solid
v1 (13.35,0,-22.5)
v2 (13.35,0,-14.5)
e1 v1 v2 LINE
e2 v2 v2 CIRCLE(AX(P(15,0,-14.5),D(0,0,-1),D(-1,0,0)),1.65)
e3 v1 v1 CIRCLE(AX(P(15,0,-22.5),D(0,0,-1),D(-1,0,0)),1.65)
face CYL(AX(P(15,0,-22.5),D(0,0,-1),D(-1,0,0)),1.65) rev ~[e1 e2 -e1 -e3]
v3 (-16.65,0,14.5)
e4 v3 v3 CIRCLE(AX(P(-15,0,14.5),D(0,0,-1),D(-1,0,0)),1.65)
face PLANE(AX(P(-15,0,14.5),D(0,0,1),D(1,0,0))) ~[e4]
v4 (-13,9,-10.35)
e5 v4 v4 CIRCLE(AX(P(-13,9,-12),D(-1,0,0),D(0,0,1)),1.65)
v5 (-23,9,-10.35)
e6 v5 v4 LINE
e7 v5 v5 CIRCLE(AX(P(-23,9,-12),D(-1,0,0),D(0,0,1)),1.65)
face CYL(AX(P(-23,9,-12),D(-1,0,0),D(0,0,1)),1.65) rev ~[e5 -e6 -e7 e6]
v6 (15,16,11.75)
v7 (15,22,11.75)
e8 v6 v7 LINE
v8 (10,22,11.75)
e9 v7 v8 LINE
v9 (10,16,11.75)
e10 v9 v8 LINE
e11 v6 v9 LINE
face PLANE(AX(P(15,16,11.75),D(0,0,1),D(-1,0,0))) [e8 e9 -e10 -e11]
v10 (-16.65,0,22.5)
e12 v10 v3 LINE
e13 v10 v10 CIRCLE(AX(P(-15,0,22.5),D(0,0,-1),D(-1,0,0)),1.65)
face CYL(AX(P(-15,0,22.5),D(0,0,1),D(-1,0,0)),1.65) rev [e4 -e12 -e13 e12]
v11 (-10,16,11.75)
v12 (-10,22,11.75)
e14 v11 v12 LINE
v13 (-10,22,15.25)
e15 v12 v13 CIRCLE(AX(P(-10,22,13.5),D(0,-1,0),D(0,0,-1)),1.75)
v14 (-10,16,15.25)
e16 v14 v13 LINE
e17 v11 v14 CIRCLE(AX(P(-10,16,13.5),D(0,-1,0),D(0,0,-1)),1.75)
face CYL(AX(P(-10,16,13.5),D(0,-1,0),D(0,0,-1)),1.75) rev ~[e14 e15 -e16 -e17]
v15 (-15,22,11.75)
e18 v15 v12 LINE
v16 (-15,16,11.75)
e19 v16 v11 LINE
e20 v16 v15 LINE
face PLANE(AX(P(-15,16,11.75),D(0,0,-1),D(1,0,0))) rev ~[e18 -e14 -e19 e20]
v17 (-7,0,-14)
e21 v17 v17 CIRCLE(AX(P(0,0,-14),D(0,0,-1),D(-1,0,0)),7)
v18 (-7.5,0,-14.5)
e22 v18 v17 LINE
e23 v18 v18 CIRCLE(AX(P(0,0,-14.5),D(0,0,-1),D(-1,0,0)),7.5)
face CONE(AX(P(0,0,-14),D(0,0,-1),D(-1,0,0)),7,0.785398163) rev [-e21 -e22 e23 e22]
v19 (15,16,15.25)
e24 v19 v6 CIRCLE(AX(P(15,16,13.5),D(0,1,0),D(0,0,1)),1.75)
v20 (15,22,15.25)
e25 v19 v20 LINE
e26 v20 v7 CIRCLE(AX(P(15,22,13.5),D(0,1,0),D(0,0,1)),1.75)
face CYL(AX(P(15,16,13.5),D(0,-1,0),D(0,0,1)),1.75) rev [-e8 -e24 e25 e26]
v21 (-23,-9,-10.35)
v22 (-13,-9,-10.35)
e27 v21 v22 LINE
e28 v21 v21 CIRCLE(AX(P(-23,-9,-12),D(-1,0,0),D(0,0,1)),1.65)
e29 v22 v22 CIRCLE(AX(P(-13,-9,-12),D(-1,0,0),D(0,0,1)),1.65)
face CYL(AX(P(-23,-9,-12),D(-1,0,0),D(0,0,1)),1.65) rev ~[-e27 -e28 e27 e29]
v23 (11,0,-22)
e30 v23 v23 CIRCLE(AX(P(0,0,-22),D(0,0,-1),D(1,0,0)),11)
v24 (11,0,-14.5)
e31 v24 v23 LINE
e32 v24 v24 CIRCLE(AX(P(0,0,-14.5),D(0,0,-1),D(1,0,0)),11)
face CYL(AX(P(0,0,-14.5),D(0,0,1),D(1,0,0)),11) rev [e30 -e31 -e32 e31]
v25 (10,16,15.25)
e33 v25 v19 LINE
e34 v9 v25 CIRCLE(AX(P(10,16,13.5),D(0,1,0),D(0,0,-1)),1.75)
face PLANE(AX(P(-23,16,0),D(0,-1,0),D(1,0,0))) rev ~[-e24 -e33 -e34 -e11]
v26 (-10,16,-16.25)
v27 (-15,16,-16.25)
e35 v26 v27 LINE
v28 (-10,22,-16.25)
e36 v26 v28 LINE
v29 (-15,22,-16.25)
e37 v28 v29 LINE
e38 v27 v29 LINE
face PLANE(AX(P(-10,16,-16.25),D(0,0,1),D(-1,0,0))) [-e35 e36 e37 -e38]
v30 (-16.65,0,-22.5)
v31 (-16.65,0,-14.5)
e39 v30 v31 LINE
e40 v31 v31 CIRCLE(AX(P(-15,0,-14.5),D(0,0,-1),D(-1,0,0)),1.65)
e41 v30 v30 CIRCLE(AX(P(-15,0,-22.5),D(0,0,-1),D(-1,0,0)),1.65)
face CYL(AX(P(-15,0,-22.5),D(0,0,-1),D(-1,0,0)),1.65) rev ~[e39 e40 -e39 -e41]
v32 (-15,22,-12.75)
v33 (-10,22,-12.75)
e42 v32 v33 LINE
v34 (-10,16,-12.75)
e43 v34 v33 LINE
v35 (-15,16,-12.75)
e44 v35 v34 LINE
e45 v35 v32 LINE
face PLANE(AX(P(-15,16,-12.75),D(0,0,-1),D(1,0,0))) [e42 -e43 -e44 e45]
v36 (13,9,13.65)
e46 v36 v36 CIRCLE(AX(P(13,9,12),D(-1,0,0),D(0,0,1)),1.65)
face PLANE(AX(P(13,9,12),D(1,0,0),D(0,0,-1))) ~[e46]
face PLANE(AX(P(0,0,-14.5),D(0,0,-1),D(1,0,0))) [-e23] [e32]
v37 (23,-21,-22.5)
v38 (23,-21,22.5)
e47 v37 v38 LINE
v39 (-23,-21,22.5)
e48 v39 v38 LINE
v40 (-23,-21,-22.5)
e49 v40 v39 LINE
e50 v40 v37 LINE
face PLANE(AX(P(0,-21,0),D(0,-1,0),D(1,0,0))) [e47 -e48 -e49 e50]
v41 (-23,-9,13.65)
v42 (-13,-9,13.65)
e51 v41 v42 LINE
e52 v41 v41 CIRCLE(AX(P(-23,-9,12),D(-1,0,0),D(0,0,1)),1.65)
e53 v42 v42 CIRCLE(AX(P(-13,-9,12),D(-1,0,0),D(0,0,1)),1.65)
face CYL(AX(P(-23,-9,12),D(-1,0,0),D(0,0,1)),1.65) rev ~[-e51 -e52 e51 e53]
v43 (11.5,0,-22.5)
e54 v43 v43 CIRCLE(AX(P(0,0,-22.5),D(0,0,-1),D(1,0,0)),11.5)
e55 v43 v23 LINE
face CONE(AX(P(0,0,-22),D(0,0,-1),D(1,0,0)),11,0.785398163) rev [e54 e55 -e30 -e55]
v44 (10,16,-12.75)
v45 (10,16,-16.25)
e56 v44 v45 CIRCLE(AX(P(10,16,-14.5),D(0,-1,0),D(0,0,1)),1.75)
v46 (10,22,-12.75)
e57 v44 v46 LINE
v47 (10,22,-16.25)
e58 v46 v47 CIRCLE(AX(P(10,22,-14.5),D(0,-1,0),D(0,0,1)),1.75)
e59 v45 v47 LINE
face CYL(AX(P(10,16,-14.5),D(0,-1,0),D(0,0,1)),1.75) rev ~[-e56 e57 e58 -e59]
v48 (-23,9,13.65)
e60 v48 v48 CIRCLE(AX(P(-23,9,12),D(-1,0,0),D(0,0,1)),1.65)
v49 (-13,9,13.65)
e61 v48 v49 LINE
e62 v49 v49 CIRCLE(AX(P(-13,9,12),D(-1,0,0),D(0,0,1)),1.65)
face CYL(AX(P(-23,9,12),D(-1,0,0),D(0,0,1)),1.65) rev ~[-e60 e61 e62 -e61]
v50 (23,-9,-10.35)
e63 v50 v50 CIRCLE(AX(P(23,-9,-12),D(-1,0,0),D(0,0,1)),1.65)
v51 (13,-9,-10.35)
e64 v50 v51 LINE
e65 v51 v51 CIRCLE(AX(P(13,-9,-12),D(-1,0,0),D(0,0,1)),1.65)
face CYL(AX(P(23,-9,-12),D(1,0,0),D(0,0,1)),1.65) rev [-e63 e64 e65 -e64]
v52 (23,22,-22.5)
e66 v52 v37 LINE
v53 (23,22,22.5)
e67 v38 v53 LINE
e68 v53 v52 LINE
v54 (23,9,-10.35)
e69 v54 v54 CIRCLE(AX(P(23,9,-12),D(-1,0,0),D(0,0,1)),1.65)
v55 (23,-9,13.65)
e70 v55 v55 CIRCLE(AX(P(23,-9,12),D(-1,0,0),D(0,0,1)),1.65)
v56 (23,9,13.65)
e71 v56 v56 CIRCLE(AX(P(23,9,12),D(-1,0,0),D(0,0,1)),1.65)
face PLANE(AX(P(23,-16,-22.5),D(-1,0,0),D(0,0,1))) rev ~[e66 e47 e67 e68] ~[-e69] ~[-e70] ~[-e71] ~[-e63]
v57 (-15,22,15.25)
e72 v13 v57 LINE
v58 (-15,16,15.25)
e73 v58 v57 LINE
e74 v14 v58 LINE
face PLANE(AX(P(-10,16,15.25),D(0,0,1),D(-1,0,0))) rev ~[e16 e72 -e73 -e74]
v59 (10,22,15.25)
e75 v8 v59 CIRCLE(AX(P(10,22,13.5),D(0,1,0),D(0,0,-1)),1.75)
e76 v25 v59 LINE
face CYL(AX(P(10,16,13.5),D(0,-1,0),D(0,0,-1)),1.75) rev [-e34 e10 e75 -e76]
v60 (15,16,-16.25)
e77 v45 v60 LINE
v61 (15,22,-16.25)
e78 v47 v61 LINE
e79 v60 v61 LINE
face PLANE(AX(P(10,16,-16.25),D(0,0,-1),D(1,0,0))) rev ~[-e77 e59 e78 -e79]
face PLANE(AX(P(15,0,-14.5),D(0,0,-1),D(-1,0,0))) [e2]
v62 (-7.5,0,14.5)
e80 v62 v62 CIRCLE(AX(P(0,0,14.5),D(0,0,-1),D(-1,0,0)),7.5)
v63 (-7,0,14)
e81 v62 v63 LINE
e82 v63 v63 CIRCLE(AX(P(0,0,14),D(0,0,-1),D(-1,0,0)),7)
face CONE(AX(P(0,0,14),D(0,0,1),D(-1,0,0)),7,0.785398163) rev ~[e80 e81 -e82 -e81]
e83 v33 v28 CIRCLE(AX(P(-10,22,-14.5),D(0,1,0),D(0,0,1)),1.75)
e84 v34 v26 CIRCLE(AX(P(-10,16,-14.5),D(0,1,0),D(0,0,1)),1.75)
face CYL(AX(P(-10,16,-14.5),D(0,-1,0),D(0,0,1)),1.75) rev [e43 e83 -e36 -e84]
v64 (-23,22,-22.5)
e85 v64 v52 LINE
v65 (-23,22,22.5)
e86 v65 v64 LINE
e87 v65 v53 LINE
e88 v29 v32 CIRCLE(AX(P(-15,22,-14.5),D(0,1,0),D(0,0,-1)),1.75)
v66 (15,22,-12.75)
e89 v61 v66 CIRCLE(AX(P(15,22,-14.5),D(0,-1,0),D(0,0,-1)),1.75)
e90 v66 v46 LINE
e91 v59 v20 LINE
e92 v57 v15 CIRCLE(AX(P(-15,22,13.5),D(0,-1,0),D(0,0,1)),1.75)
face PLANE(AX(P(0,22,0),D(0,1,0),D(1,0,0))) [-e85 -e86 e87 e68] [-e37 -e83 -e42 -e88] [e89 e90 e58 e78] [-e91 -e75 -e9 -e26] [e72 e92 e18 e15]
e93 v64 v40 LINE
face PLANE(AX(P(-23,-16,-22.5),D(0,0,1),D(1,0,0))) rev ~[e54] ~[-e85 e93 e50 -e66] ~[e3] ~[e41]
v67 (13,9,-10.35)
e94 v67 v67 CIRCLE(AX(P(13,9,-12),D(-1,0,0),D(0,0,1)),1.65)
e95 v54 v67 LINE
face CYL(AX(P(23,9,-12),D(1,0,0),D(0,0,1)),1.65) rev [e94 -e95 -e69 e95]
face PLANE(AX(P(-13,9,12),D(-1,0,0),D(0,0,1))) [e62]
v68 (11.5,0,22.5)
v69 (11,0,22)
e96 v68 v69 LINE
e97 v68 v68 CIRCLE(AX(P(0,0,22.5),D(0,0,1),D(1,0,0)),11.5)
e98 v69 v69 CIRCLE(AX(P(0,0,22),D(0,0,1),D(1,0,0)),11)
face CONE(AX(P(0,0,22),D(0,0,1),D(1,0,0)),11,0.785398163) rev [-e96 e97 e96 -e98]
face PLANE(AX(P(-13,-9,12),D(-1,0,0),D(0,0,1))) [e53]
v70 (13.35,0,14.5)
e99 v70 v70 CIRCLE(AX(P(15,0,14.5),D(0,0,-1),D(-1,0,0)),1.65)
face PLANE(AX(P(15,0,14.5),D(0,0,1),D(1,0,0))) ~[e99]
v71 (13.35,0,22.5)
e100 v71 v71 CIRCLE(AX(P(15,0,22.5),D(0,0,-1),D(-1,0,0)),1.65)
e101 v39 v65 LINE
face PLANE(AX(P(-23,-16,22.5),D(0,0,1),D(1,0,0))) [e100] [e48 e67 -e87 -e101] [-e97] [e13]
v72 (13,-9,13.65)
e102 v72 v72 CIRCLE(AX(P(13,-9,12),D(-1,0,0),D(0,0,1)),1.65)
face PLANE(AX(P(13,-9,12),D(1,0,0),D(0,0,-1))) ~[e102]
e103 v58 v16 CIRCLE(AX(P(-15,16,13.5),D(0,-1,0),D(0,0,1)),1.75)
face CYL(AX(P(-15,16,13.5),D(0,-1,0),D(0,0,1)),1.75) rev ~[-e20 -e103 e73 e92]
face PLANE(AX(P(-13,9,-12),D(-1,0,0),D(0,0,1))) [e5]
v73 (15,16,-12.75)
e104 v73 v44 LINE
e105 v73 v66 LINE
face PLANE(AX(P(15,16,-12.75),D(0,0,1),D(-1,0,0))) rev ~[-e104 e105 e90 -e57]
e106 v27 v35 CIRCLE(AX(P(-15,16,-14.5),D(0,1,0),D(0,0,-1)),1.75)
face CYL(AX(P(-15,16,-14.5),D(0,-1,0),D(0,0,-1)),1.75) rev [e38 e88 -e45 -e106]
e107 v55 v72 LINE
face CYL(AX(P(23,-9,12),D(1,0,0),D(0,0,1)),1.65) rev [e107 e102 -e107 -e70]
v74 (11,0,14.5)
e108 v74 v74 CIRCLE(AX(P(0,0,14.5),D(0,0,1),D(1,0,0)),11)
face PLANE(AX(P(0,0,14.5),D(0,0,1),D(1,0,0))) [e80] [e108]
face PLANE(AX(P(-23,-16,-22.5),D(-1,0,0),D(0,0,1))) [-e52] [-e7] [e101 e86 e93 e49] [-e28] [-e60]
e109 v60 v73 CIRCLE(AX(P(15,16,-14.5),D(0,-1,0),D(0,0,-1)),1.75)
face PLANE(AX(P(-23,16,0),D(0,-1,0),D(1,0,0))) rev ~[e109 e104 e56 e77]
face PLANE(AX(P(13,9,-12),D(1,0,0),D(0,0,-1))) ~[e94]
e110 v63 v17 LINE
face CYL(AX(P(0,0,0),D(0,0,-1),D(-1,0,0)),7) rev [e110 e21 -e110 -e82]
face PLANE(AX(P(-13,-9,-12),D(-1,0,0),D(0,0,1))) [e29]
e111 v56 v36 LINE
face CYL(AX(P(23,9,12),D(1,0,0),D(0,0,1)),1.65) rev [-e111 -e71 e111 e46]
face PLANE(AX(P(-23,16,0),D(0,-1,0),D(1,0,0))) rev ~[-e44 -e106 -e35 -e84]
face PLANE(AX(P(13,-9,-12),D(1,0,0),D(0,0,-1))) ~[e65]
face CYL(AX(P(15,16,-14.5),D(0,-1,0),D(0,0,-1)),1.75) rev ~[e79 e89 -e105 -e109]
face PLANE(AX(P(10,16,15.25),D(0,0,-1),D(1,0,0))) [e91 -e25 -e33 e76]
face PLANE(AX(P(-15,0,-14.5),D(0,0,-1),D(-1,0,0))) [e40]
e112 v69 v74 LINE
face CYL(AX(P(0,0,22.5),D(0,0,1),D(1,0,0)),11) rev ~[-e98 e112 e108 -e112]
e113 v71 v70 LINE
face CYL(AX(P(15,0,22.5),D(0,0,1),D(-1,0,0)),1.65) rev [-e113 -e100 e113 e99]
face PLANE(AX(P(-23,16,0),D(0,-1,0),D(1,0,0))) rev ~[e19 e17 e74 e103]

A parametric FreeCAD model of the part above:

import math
import FreeCAD as App
import Part
import Sketcher
from FreeCAD import Vector


def edges_at(feature, points):
    """Names of the edges that pass closest to the given points."""
    edges = feature.Shape.Edges
    near = lambda p: min(range(len(edges)), key=lambda i: edges[i].distToShape(Part.Vertex(*p))[0])
    return sorted({f"Edge{near(p) + 1}" for p in points})

doc = App.newDocument("Part")
body = doc.addObject("PartDesign::Body", "Body")

# Sketch on XY plane
sketch1 = doc.addObject("Sketcher::SketchObject", "Sketch")
body.addObject(sketch1)
sketch1.AttachmentSupport = (doc.XY_Plane, [""])
sketch1.MapMode = "FlatFace"
sketch1.addGeometry([
    Part.LineSegment(Vector(-23, 16, 0), Vector(-23, -16, 0)),  # 0
    Part.LineSegment(Vector(-23, -16, 0), Vector(23, -16, 0)),  # 1
    Part.LineSegment(Vector(23, -16, 0), Vector(23, 16, 0)),  # 2
    Part.LineSegment(Vector(23, 16, 0), Vector(-23, 16, 0)),  # 3
    Part.Circle(Vector(0, 0, 0), Vector(0, 0, 1), 7),  # 4
], False)
sketch1.addConstraint([
    Sketcher.Constraint("Coincident", 0, 2, 1, 1),
    Sketcher.Constraint("Coincident", 1, 2, 2, 1),
    Sketcher.Constraint("Coincident", 2, 2, 3, 1),
    Sketcher.Constraint("Coincident", 3, 2, 0, 1),
    Sketcher.Constraint("Vertical", 0),
    Sketcher.Constraint("Horizontal", 1),
    Sketcher.Constraint("Vertical", 2),
    Sketcher.Constraint("Horizontal", 3),
    Sketcher.Constraint("Coincident", 4, 3, -1, 1),
    Sketcher.Constraint("Symmetric", 0, 2, 2, 2, -1, 1),
    Sketcher.Constraint("Diameter", 4, 14.0),
    Sketcher.Constraint("DistanceX", 1, 1, 1, 2, 46.0),
    Sketcher.Constraint("DistanceY", 0, 2, 0, 1, 32.0),
])
pad1 = doc.addObject("PartDesign::Pad", "Pad")
body.addObject(pad1)
pad1.Profile = sketch1
pad1.Length = 45
pad1.Midplane = True

# Sketch on XY plane
sketch2 = doc.addObject("Sketcher::SketchObject", "Sketch001")
body.addObject(sketch2)
sketch2.AttachmentSupport = (doc.XY_Plane, [""])
sketch2.MapMode = "FlatFace"
sketch2.AttachmentOffset = App.Placement(Vector(0, 0, 22.5), App.Rotation())
sketch2.addGeometry(Part.Circle(Vector(0, 0, 0), Vector(0, 0, 1), 11), False)
sketch2.addConstraint([
    Sketcher.Constraint("Coincident", 0, 3, -1, 1),
    Sketcher.Constraint("Diameter", 0, 22.0),
])
pocket1 = doc.addObject("PartDesign::Pocket", "Pocket")
body.addObject(pocket1)
pocket1.Profile = sketch2
pocket1.Length = 8

# Sketch on XY plane
sketch3 = doc.addObject("Sketcher::SketchObject", "Sketch002")
body.addObject(sketch3)
sketch3.AttachmentSupport = (doc.XY_Plane, [""])
sketch3.MapMode = "FlatFace"
sketch3.AttachmentOffset = App.Placement(Vector(0, 0, -14.5), App.Rotation())
sketch3.addGeometry(Part.Circle(Vector(0, 0, 0), Vector(0, 0, 1), 11), False)
sketch3.addConstraint([
    Sketcher.Constraint("Coincident", 0, 3, -1, 1),
    Sketcher.Constraint("Diameter", 0, 22.0),
])
pocket2 = doc.addObject("PartDesign::Pocket", "Pocket001")
body.addObject(pocket2)
pocket2.Profile = sketch3
pocket2.Length = 8

# Sketch on YZ plane
sketch4 = doc.addObject("Sketcher::SketchObject", "Sketch003")
body.addObject(sketch4)
sketch4.AttachmentSupport = (doc.YZ_Plane, [""])
sketch4.MapMode = "FlatFace"
sketch4.AttachmentOffset = App.Placement(Vector(0, 0, -23), App.Rotation())
sketch4.addGeometry([
    Part.Circle(Vector(-9, 12, 0), Vector(0, 0, 1), 1.65),
    Part.Circle(Vector(9, 12, 0), Vector(0, 0, 1), 1.65),
    Part.Circle(Vector(-9, -12, 0), Vector(0, 0, 1), 1.65),
    Part.Circle(Vector(9, -12, 0), Vector(0, 0, 1), 1.65),
], False)
sketch4.addConstraint([
    Sketcher.Constraint("Equal", 0, 1),
    Sketcher.Constraint("Equal", 1, 2),
    Sketcher.Constraint("Equal", 2, 3),
    Sketcher.Constraint("Symmetric", 1, 3, 2, 3, -1, 1),
    Sketcher.Constraint("Symmetric", 0, 3, 3, 3, -1, 1),
    Sketcher.Constraint("Symmetric", 0, 3, 1, 3, -2),
    Sketcher.Constraint("Diameter", 0, 3.3),
    Sketcher.Constraint("DistanceX", 0, 3, -1, 1, 9.0),
    Sketcher.Constraint("DistanceY", -1, 1, 0, 3, 12.0),
])
pocket3 = doc.addObject("PartDesign::Pocket", "Pocket002")
body.addObject(pocket3)
pocket3.Profile = sketch4
pocket3.Length = 10
pocket3.Reversed = True
doc.recompute()

mirrored = doc.addObject("PartDesign::Mirrored", "Mirrored")
body.addObject(mirrored)
mirrored.Originals = [pocket3]
mirrored.MirrorPlane = (doc.YZ_Plane, [""])
body.Tip = mirrored
doc.recompute()

chamfer = doc.addObject("PartDesign::Chamfer", "Chamfer")
body.addObject(chamfer)
chamfer.Base = (mirrored, edges_at(mirrored, [
    (7, 0, 14.5),
    (-11, 0, 22.5),
    (7, 0, -14.5),
    (-11, 0, -22.5),
]))
chamfer.Size = 0.5

# Sketch on XZ plane
sketch5 = doc.addObject("Sketcher::SketchObject", "Sketch004")
body.addObject(sketch5)
sketch5.AttachmentSupport = (doc.XZ_Plane, [""])
sketch5.MapMode = "FlatFace"
sketch5.AttachmentOffset = App.Placement(Vector(0, 0, -16), App.Rotation())
sketch5.addGeometry([
    Part.LineSegment(Vector(-23, -22.5, 0), Vector(-23, 22.5, 0)),  # 0
    Part.LineSegment(Vector(-23, 22.5, 0), Vector(23, 22.5, 0)),  # 1
    Part.LineSegment(Vector(23, 22.5, 0), Vector(23, -22.5, 0)),  # 2
    Part.LineSegment(Vector(23, -22.5, 0), Vector(-23, -22.5, 0)),  # 3
    Part.ArcOfCircle(Part.Circle(Vector(-10, 13.5, 0), Vector(0, 0, 1), 1.75), math.radians(-90), math.radians(90)),  # 4
    Part.LineSegment(Vector(-10, 15.25, 0), Vector(-15, 15.25, 0)),  # 5
    Part.ArcOfCircle(Part.Circle(Vector(-15, 13.5, 0), Vector(0, 0, 1), 1.75), math.radians(90), math.radians(270)),  # 6
    Part.LineSegment(Vector(-15, 11.75, 0), Vector(-10, 11.75, 0)),  # 7
    Part.LineSegment(Vector(10, 11.75, 0), Vector(15, 11.75, 0)),  # 8
    Part.ArcOfCircle(Part.Circle(Vector(15, 13.5, 0), Vector(0, 0, 1), 1.75), math.radians(-90), math.radians(90)),  # 9
    Part.LineSegment(Vector(15, 15.25, 0), Vector(10, 15.25, 0)),  # 10
    Part.ArcOfCircle(Part.Circle(Vector(10, 13.5, 0), Vector(0, 0, 1), 1.75), math.radians(90), math.radians(270)),  # 11
    Part.LineSegment(Vector(-10, -12.75, 0), Vector(-15, -12.75, 0)),  # 12
    Part.ArcOfCircle(Part.Circle(Vector(-15, -14.5, 0), Vector(0, 0, 1), 1.75), math.radians(90), math.radians(270)),  # 13
    Part.LineSegment(Vector(-15, -16.25, 0), Vector(-10, -16.25, 0)),  # 14
    Part.ArcOfCircle(Part.Circle(Vector(-10, -14.5, 0), Vector(0, 0, 1), 1.75), math.radians(-90), math.radians(90)),  # 15
    Part.ArcOfCircle(Part.Circle(Vector(10, -14.5, 0), Vector(0, 0, 1), 1.75), math.radians(90), math.radians(270)),  # 16
    Part.LineSegment(Vector(10, -16.25, 0), Vector(15, -16.25, 0)),  # 17
    Part.ArcOfCircle(Part.Circle(Vector(15, -14.5, 0), Vector(0, 0, 1), 1.75), math.radians(-90), math.radians(90)),  # 18
    Part.LineSegment(Vector(15, -12.75, 0), Vector(10, -12.75, 0)),  # 19
], False)
sketch5.addConstraint([
    Sketcher.Constraint("Coincident", 0, 2, 1, 1),
    Sketcher.Constraint("Coincident", 1, 2, 2, 1),
    Sketcher.Constraint("Coincident", 2, 2, 3, 1),
    Sketcher.Constraint("Coincident", 3, 2, 0, 1),
    Sketcher.Constraint("Tangent", 4, 2, 5, 1),
    Sketcher.Constraint("Tangent", 5, 2, 6, 1),
    Sketcher.Constraint("Tangent", 6, 2, 7, 1),
    Sketcher.Constraint("Tangent", 7, 2, 4, 1),
    Sketcher.Constraint("Tangent", 8, 2, 9, 1),
    Sketcher.Constraint("Tangent", 9, 2, 10, 1),
    Sketcher.Constraint("Tangent", 10, 2, 11, 1),
    Sketcher.Constraint("Tangent", 11, 2, 8, 1),
    Sketcher.Constraint("Tangent", 12, 2, 13, 1),
    Sketcher.Constraint("Tangent", 13, 2, 14, 1),
    Sketcher.Constraint("Tangent", 14, 2, 15, 1),
    Sketcher.Constraint("Tangent", 15, 2, 12, 1),
    Sketcher.Constraint("Tangent", 16, 2, 17, 1),
    Sketcher.Constraint("Tangent", 17, 2, 18, 1),
    Sketcher.Constraint("Tangent", 18, 2, 19, 1),
    Sketcher.Constraint("Tangent", 19, 2, 16, 1),
    Sketcher.Constraint("Vertical", 0),
    Sketcher.Constraint("Horizontal", 1),
    Sketcher.Constraint("Vertical", 2),
    Sketcher.Constraint("Horizontal", 3),
    Sketcher.Constraint("Horizontal", 5),
    Sketcher.Constraint("Horizontal", 7),
    Sketcher.Constraint("Horizontal", 8),
    Sketcher.Constraint("Horizontal", 10),
    Sketcher.Constraint("Horizontal", 12),
    Sketcher.Constraint("Horizontal", 14),
    Sketcher.Constraint("Horizontal", 17),
    Sketcher.Constraint("Horizontal", 19),
    Sketcher.Constraint("Equal", 6, 9),
    Sketcher.Constraint("Equal", 11, 13),
    Sketcher.Constraint("Equal", 15, 16),
    Sketcher.Constraint("Symmetric", 0, 2, 2, 2, -1, 1),
    Sketcher.Constraint("Symmetric", 6, 3, 9, 3, -2),
    Sketcher.Constraint("Symmetric", 15, 3, 16, 3, -2),
    Sketcher.Constraint("Vertical", 6, 3, 13, 3),
    Sketcher.Constraint("Vertical", 4, 3, 15, 3),
    Sketcher.Constraint("Vertical", 11, 3, 16, 3),
    Sketcher.Constraint("Vertical", 9, 3, 18, 3),
    Sketcher.Constraint("DistanceX", 1, 1, 1, 2, 46.0),
    Sketcher.Constraint("DistanceX", 5, 2, 5, 1, 5.0),
    Sketcher.Constraint("DistanceY", 0, 1, 0, 2, 45.0),
    Sketcher.Constraint("Radius", 4, 1.75),
    Sketcher.Constraint("DistanceX", 4, 3, -1, 1, 10.0),
    Sketcher.Constraint("DistanceY", 13, 3, 6, 3, 28.0),
    Sketcher.Constraint("DistanceY", 6, 3, 0, 2, 9.0),
])
pad2 = doc.addObject("PartDesign::Pad", "Pad001")
body.addObject(pad2)
pad2.Profile = sketch5
pad2.Length = 6
pad2.Reversed = True

# Sketch on XY plane
sketch6 = doc.addObject("Sketcher::SketchObject", "Sketch005")
body.addObject(sketch6)
sketch6.AttachmentSupport = (doc.XY_Plane, [""])
sketch6.MapMode = "FlatFace"
sketch6.AttachmentOffset = App.Placement(Vector(0, 0, -22.5), App.Rotation())
sketch6.addGeometry([
    Part.Circle(Vector(-15, 0, 0), Vector(0, 0, 1), 1.65),
    Part.Circle(Vector(15, 0, 0), Vector(0, 0, 1), 1.65),
], False)
sketch6.addConstraint([
    Sketcher.Constraint("Equal", 0, 1),
    Sketcher.Constraint("Symmetric", 0, 3, 1, 3, -1, 1),
    Sketcher.Constraint("PointOnObject", 0, 3, -1),
    Sketcher.Constraint("Diameter", 0, 3.3),
    Sketcher.Constraint("DistanceX", 0, 3, -1, 1, 15.0),
])
pocket4 = doc.addObject("PartDesign::Pocket", "Pocket003")
body.addObject(pocket4)
pocket4.Profile = sketch6
pocket4.Length = 8
pocket4.Reversed = True
doc.recompute()

mirrored2 = doc.addObject("PartDesign::Mirrored", "Mirrored001")
body.addObject(mirrored2)
mirrored2.Originals = [pocket4]
mirrored2.MirrorPlane = (doc.XY_Plane, [""])
body.Tip = mirrored2

# Sketch on XZ plane
sketch7 = doc.addObject("Sketcher::SketchObject", "Sketch006")
body.addObject(sketch7)
sketch7.AttachmentSupport = (doc.XZ_Plane, [""])
sketch7.MapMode = "FlatFace"
sketch7.AttachmentOffset = App.Placement(Vector(0, 0, 16), App.Rotation())
sketch7.addGeometry([
    Part.LineSegment(Vector(-23, 22.5, 0), Vector(-23, -22.5, 0)),
    Part.LineSegment(Vector(-23, -22.5, 0), Vector(23, -22.5, 0)),
    Part.LineSegment(Vector(23, -22.5, 0), Vector(23, 22.5, 0)),
    Part.LineSegment(Vector(23, 22.5, 0), Vector(-23, 22.5, 0)),
], False)
sketch7.addConstraint([
    Sketcher.Constraint("Coincident", 0, 2, 1, 1),
    Sketcher.Constraint("Coincident", 1, 2, 2, 1),
    Sketcher.Constraint("Coincident", 2, 2, 3, 1),
    Sketcher.Constraint("Coincident", 3, 2, 0, 1),
    Sketcher.Constraint("Vertical", 0),
    Sketcher.Constraint("Horizontal", 1),
    Sketcher.Constraint("Vertical", 2),
    Sketcher.Constraint("Horizontal", 3),
    Sketcher.Constraint("Symmetric", 0, 2, 2, 2, -1, 1),
    Sketcher.Constraint("DistanceX", 1, 1, 1, 2, 46.0),
    Sketcher.Constraint("DistanceY", 0, 2, 0, 1, 45.0),
])
pad3 = doc.addObject("PartDesign::Pad", "Pad002")
body.addObject(pad3)
pad3.Profile = sketch7
pad3.Length = 5

doc.recompute()
